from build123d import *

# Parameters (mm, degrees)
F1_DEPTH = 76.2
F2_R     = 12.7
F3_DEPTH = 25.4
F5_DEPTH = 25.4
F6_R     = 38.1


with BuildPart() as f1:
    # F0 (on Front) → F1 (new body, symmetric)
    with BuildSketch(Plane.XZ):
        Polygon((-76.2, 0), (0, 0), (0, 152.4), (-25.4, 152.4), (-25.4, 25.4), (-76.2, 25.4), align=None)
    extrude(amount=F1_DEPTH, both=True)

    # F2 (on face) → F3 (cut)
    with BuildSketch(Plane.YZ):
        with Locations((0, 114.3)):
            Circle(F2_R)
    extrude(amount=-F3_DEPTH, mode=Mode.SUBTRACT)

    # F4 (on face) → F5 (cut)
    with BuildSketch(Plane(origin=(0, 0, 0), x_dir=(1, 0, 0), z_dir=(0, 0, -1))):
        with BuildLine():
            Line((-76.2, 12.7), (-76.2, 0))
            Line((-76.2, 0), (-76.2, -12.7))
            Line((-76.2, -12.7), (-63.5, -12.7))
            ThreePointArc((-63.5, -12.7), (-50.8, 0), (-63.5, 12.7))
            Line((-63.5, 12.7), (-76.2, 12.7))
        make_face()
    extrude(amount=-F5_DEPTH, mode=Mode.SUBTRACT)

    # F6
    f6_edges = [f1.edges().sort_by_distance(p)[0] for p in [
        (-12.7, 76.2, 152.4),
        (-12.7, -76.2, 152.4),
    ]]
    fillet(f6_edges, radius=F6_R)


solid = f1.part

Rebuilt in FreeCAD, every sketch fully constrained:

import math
import FreeCAD as App
import Part
import Sketcher
from FreeCAD import Vector
Q = App.Units.Quantity


def edges_at(feature, points):
    """Names of the edges that pass closest to the given points."""
    edges = feature.Shape.Edges
    near = lambda p: min(range(len(edges)), key=lambda i: edges[i].distToShape(Part.Vertex(*p))[0])
    return sorted({f"Edge{near(p) + 1}" for p in points})

doc = App.newDocument("Part")
body = doc.addObject("PartDesign::Body", "Body")

# Sketch on XZ plane
sketch1 = doc.addObject("Sketcher::SketchObject", "Sketch")
body.addObject(sketch1)
sketch1.AttachmentSupport = (doc.XZ_Plane, [""])
sketch1.MapMode = "FlatFace"
sketch1.addGeometry(Part.LineSegment(Vector(-76, 0, 0), Vector(0, 0, 0)), False)
sketch1.addGeometry(Part.LineSegment(Vector(0, 0, 0), Vector(0, 152, 0)), False)
sketch1.addGeometry(Part.LineSegment(Vector(0, 152, 0), Vector(-25, 152, 0)), False)
sketch1.addGeometry(Part.LineSegment(Vector(-25, 152, 0), Vector(-25, 25, 0)), False)
sketch1.addGeometry(Part.LineSegment(Vector(-25, 25, 0), Vector(-76, 25, 0)), False)
sketch1.addGeometry(Part.LineSegment(Vector(-76, 25, 0), Vector(-76, 0, 0)), False)
sketch1.addConstraint(Sketcher.Constraint("Coincident", 0, 2, 1, 1))
sketch1.addConstraint(Sketcher.Constraint("Coincident", 1, 2, 2, 1))
sketch1.addConstraint(Sketcher.Constraint("Coincident", 2, 2, 3, 1))
sketch1.addConstraint(Sketcher.Constraint("Coincident", 3, 2, 4, 1))
sketch1.addConstraint(Sketcher.Constraint("Coincident", 4, 2, 5, 1))
sketch1.addConstraint(Sketcher.Constraint("Coincident", 5, 2, 0, 1))
sketch1.addConstraint(Sketcher.Constraint("Horizontal", 0))
sketch1.addConstraint(Sketcher.Constraint("Vertical", 1))
sketch1.addConstraint(Sketcher.Constraint("Horizontal", 2))
sketch1.addConstraint(Sketcher.Constraint("Vertical", 3))
sketch1.addConstraint(Sketcher.Constraint("Horizontal", 4))
sketch1.addConstraint(Sketcher.Constraint("Vertical", 5))
sketch1.addConstraint(Sketcher.Constraint("Coincident", 0, 2, -1, 1))
sketch1.addConstraint(Sketcher.Constraint("Equal", 2, 5))
sketch1.addConstraint(Sketcher.Constraint("DistanceX", 0, 1, 0, 2, Q("3 in")))
sketch1.addConstraint(Sketcher.Constraint("DistanceX", 2, 2, 2, 1, Q("1 in")))
sketch1.addConstraint(Sketcher.Constraint("DistanceY", 1, 1, 1, 2, Q("6 in")))
pad1 = doc.addObject("PartDesign::Pad", "Pad")
body.addObject(pad1)
pad1.Profile = sketch1
pad1.Length = Q("6 in")
pad1.Midplane = True

# Sketch on YZ plane
sketch2 = doc.addObject("Sketcher::SketchObject", "Sketch001")
body.addObject(sketch2)
sketch2.AttachmentSupport = (doc.YZ_Plane, [""])
sketch2.MapMode = "FlatFace"
sketch2.addGeometry(Part.Circle(Vector(0, 114, 0), Vector(0, 0, 1), 13), False)
sketch2.addConstraint(Sketcher.Constraint("PointOnObject", 0, 3, -2))
sketch2.addConstraint(Sketcher.Constraint("Diameter", 0, Q("1 in")))
sketch2.addConstraint(Sketcher.Constraint("DistanceY", -1, 1, 0, 3, Q("4.5 in")))
pocket1 = doc.addObject("PartDesign::Pocket", "Pocket")
body.addObject(pocket1)
pocket1.Profile = sketch2
pocket1.Length = Q("1 in")

# Sketch on XY plane
sketch3 = doc.addObject("Sketcher::SketchObject", "Sketch002")
body.addObject(sketch3)
sketch3.AttachmentSupport = (doc.XY_Plane, [""])
sketch3.MapMode = "FlatFace"
sketch3.addGeometry(Part.LineSegment(Vector(-76, -13, 0), Vector(-76, 13, 0)), False)
sketch3.addGeometry(Part.LineSegment(Vector(-76, 13, 0), Vector(-64, 13, 0)), False)
sketch3.addGeometry(Part.ArcOfCircle(Part.Circle(Vector(-64, 0, 0), Vector(0, 0, 1), 13), math.radians(-90), math.radians(90)), False)
sketch3.addGeometry(Part.LineSegment(Vector(-64, -13, 0), Vector(-76, -13, 0)), False)
sketch3.addConstraint(Sketcher.Constraint("Coincident", 0, 2, 1, 1))
sketch3.addConstraint(Sketcher.Constraint("Tangent", 1, 2, 2, 2))
sketch3.addConstraint(Sketcher.Constraint("Tangent", 2, 1, 3, 1))
sketch3.addConstraint(Sketcher.Constraint("Coincident", 3, 2, 0, 1))
sketch3.addConstraint(Sketcher.Constraint("Vertical", 0))
sketch3.addConstraint(Sketcher.Constraint("Horizontal", 1))
sketch3.addConstraint(Sketcher.Constraint("Horizontal", 3))
sketch3.addConstraint(Sketcher.Constraint("PointOnObject", 2, 3, -1))
sketch3.addConstraint(Sketcher.Constraint("Radius", 2, Q("0.5 in")))
sketch3.addConstraint(Sketcher.Constraint("DistanceX", 1, 1, 1, 2, Q("0.5 in")))
sketch3.addConstraint(Sketcher.Constraint("DistanceX", 0, 2, -1, 1, Q("3 in")))
pocket2 = doc.addObject("PartDesign::Pocket", "Pocket001")
body.addObject(pocket2)
pocket2.Profile = sketch3
pocket2.Length = Q("1 in")
pocket2.Reversed = True
doc.recompute()

fillet = doc.addObject("PartDesign::Fillet", "Fillet")
body.addObject(fillet)
fillet.Base = (pocket2, edges_at(pocket2, [(-12.7, 76.2, 152.4), (-12.7, -76.2, 152.4)]))
fillet.Radius = Q("1.5 in")

doc.recompute()
